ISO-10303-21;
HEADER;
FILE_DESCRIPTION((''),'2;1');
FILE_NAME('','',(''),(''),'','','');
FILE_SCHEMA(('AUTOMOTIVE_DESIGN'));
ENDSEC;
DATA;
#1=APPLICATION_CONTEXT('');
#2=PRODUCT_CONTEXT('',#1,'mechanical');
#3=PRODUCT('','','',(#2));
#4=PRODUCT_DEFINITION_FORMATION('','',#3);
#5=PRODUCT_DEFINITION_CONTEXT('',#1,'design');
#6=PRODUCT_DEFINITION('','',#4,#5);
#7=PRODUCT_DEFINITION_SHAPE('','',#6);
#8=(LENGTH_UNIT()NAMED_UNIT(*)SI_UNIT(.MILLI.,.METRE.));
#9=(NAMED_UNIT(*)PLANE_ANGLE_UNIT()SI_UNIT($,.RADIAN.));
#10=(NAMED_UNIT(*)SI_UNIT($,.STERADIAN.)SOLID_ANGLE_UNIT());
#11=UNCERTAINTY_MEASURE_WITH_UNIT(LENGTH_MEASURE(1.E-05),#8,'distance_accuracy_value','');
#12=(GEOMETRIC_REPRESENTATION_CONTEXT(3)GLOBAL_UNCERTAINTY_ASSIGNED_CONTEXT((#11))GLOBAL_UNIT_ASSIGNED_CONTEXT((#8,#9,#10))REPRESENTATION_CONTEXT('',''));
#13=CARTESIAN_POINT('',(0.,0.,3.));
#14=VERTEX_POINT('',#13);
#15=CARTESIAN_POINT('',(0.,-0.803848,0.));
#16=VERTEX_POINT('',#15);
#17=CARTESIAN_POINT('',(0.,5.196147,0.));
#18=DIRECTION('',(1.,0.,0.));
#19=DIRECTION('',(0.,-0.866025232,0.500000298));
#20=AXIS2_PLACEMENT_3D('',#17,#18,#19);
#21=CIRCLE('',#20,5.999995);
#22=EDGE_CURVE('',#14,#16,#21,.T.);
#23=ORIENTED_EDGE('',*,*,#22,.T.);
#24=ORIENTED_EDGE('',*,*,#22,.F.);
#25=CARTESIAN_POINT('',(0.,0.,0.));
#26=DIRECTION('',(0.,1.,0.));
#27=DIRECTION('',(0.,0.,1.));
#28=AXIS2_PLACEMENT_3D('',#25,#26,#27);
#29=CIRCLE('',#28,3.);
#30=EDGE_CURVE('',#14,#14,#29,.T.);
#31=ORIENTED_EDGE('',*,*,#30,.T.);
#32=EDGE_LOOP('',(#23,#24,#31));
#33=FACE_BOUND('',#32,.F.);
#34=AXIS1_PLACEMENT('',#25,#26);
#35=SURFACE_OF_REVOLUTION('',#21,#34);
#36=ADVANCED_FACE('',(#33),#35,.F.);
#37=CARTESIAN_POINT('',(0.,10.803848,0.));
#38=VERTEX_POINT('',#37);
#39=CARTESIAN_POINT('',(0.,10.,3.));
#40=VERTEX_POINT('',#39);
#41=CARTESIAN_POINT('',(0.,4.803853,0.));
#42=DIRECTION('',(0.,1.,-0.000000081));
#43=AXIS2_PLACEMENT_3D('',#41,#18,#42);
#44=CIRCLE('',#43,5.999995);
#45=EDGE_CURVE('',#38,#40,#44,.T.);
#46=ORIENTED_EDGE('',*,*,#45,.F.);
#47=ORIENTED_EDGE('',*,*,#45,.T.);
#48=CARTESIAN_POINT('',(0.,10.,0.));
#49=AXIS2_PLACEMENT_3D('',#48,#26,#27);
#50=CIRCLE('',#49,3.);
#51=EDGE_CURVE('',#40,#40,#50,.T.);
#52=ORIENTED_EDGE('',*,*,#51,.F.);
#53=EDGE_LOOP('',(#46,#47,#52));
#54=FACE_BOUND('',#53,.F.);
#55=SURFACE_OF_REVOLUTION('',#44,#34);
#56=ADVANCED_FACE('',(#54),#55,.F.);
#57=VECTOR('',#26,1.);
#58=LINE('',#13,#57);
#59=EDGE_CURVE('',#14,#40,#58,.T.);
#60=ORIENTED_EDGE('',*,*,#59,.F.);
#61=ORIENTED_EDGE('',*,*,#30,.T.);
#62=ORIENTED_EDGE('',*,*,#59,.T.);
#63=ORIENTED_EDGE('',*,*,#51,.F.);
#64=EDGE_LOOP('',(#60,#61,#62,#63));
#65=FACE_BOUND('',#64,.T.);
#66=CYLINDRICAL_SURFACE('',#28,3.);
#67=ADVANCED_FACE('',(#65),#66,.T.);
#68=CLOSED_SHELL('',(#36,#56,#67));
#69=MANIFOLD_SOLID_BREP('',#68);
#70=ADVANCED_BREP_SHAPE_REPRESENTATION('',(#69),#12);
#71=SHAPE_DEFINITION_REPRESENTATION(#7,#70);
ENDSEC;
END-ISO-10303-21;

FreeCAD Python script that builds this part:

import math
import FreeCAD as App
import Part
import Sketcher

doc = App.newDocument("Part")
body = doc.addObject("PartDesign::Body", "Body")

# Sketch on YZ plane
sketch1 = doc.addObject("Sketcher::SketchObject", "Sketch")
body.addObject(sketch1)
sketch1.AttachmentSupport = (doc.YZ_Plane, [""])
sketch1.MapMode = "FlatFace"
sketch1.addGeometry([
    Part.ArcOfCircle(Part.Circle(App.Vector(4.803853, 0, 0), App.Vector(0, 0, 1), 5.999995), math.radians(-0.000005), math.radians(30.00002)),
    Part.LineSegment(App.Vector(10, 3, 0), App.Vector(0, 3, 0)),
    Part.ArcOfCircle(Part.Circle(App.Vector(5.196147, 0, 0), App.Vector(0, 0, 1), 5.999995), math.radians(149.99998), math.radians(180.000005)),
    Part.LineSegment(App.Vector(-0.803848, 0, 0), App.Vector(10.803848, 0, 0)),
], False)
sketch1.addConstraint([
    Sketcher.Constraint("Coincident", 0, 2, 1, 1),
    Sketcher.Constraint("Coincident", 1, 2, 2, 1),
    Sketcher.Constraint("Coincident", 2, 2, 3, 1),
    Sketcher.Constraint("Coincident", 3, 2, 0, 1),
    Sketcher.Constraint("Horizontal", 1),
    Sketcher.Constraint("Horizontal", 3),
    Sketcher.Constraint("Equal", 0, 2),
    Sketcher.Constraint("PointOnObject", 0, 3, -1),
    Sketcher.Constraint("PointOnObject", 2, 3, -1),
    Sketcher.Constraint("PointOnObject", 1, 2, -2),
    Sketcher.Constraint("PointOnObject", 2, 2, -1),
    Sketcher.Constraint("DistanceX", 1, 2, 1, 1, 10.0),
    Sketcher.Constraint("DistanceY", -1, 1, 0, 2, 3.0),
    Sketcher.Constraint("Radius", 0, 5.999995),
])
revolution = doc.addObject("PartDesign::Revolution", "Revolution")
body.addObject(revolution)
revolution.Profile = sketch1
revolution.ReferenceAxis = (sketch1, ["H_Axis"])
revolution.Angle = 360

doc.recompute()
